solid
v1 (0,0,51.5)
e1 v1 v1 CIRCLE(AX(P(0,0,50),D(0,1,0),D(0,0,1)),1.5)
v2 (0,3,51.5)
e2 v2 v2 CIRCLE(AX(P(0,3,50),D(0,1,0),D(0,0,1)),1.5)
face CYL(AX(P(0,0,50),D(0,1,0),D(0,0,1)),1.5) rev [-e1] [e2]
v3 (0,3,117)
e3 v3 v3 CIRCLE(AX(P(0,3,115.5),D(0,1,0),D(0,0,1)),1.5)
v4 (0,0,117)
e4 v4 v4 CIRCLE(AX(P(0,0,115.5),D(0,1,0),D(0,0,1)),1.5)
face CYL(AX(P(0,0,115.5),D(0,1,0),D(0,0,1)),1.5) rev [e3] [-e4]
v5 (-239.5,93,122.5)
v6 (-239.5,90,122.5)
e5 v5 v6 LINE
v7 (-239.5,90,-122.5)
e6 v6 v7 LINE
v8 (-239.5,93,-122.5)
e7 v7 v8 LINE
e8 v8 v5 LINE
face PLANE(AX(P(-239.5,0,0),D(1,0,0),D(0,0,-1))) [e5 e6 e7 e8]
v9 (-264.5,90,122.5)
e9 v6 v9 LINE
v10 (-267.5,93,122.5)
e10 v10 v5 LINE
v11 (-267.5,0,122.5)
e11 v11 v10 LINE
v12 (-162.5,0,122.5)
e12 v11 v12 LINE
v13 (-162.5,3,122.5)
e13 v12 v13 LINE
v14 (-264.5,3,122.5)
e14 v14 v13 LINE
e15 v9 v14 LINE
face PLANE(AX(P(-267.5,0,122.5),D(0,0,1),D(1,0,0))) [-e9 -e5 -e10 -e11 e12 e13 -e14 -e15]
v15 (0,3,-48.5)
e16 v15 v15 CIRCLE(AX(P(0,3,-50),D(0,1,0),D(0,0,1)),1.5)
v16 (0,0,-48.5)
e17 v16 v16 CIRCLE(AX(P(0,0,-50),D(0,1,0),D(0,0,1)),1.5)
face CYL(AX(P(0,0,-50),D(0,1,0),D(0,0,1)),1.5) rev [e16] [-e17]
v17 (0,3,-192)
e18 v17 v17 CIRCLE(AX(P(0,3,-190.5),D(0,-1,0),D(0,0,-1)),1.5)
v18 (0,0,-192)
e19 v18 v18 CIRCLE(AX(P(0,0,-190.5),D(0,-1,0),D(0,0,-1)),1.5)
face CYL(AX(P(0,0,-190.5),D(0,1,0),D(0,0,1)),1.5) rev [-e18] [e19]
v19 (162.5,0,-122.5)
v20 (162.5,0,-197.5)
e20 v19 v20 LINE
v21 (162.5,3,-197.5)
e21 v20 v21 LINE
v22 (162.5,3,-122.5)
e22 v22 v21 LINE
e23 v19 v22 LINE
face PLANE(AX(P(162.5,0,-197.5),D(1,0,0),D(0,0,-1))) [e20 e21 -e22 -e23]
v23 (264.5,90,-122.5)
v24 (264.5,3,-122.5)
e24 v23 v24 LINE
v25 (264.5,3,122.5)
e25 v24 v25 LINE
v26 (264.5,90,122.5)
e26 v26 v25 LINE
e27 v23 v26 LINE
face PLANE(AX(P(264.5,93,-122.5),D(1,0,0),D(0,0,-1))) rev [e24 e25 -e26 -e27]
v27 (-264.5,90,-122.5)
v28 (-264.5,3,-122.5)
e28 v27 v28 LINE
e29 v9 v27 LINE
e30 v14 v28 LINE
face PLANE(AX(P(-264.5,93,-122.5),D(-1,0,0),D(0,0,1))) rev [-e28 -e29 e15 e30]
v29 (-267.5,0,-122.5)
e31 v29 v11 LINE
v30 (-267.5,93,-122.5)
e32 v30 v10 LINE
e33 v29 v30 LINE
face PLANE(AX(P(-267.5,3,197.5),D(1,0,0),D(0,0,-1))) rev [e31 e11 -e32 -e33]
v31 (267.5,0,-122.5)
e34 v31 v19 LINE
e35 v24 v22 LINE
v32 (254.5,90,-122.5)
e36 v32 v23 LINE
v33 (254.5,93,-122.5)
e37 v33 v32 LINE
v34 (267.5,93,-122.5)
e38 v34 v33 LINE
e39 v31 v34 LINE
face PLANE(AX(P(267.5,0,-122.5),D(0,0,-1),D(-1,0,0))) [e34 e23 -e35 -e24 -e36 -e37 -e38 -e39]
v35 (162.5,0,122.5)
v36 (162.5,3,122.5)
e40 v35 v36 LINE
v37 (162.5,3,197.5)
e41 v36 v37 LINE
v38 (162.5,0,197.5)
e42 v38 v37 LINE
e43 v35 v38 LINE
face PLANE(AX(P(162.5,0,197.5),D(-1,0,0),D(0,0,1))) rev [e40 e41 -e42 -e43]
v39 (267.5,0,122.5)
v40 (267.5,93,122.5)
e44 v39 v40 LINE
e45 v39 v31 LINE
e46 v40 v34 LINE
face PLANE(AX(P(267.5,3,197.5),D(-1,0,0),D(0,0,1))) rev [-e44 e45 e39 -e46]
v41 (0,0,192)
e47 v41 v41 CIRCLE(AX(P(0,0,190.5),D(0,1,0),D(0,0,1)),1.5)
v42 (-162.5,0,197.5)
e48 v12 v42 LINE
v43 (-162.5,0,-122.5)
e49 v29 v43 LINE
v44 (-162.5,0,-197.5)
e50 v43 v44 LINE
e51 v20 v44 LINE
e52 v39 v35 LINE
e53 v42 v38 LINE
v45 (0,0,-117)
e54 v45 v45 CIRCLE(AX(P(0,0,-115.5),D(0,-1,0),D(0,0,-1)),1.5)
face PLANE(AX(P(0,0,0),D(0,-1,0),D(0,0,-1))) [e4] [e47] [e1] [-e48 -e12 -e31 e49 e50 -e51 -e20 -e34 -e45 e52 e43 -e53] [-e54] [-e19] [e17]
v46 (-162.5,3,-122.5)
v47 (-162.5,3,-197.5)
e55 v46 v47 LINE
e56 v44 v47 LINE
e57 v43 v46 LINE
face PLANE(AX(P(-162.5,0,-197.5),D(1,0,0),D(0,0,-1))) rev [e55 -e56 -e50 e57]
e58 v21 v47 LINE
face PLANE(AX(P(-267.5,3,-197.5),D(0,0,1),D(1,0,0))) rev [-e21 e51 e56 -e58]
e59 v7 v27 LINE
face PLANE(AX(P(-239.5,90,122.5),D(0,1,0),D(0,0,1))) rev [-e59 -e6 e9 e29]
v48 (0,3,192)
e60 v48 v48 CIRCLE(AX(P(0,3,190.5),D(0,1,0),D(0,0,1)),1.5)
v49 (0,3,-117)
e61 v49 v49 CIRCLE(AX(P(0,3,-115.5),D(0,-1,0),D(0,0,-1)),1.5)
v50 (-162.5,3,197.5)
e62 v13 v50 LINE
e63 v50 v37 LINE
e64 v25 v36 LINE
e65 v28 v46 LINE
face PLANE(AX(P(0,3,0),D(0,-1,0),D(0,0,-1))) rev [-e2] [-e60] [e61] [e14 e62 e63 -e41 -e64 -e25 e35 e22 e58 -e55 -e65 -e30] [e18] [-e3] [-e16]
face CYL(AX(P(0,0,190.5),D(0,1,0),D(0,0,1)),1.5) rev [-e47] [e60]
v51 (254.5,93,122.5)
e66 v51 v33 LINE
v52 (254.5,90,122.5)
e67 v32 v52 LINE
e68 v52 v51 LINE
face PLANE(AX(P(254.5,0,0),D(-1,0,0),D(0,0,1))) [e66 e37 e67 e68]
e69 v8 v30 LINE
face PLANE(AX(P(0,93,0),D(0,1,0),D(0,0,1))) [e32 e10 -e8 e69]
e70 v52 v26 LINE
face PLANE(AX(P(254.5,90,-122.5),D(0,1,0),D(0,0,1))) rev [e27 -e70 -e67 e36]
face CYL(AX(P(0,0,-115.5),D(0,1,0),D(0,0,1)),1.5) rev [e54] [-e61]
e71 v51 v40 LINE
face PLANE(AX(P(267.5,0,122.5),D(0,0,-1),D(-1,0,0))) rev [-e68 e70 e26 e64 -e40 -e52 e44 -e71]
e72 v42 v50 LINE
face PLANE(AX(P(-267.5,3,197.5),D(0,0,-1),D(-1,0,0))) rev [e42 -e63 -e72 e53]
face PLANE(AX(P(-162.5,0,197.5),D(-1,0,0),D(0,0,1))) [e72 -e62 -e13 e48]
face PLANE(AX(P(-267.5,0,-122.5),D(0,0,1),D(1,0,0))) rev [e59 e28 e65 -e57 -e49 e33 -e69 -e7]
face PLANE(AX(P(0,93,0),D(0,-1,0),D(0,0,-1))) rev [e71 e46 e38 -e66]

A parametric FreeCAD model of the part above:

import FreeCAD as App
import Part
import Sketcher

V = App.Vector
Q = App.Units.Quantity

doc = App.newDocument("Part")
body = doc.addObject("PartDesign::Body", "Body")

# Sketch on XZ plane
sketch1 = doc.addObject("Sketcher::SketchObject", "Sketch")
body.addObject(sketch1)
sketch1.AttachmentSupport = (doc.XZ_Plane, [""])
sketch1.MapMode = "FlatFace"
sketch1.addGeometry(Part.LineSegment(V(-268, -198, 0), V(-268, 198, 0)), False)
sketch1.addGeometry(Part.LineSegment(V(-268, 198, 0), V(268, 198, 0)), False)
sketch1.addGeometry(Part.LineSegment(V(268, 198, 0), V(268, -198, 0)), False)
sketch1.addGeometry(Part.LineSegment(V(268, -198, 0), V(-268, -198, 0)), False)
sketch1.addConstraint(Sketcher.Constraint("Coincident", 0, 2, 1, 1))
sketch1.addConstraint(Sketcher.Constraint("Coincident", 1, 2, 2, 1))
sketch1.addConstraint(Sketcher.Constraint("Coincident", 2, 2, 3, 1))
sketch1.addConstraint(Sketcher.Constraint("Coincident", 3, 2, 0, 1))
sketch1.addConstraint(Sketcher.Constraint("Vertical", 0))
sketch1.addConstraint(Sketcher.Constraint("Horizontal", 1))
sketch1.addConstraint(Sketcher.Constraint("Vertical", 2))
sketch1.addConstraint(Sketcher.Constraint("Horizontal", 3))
sketch1.addConstraint(Sketcher.Constraint("Symmetric", 0, 2, 2, 2, -1, 1))
sketch1.addConstraint(Sketcher.Constraint("DistanceX", 1, 1, 1, 2, Q("535 mm")))
sketch1.addConstraint(Sketcher.Constraint("DistanceY", 0, 1, 0, 2, Q("395 mm")))
pad1 = doc.addObject("PartDesign::Pad", "Pad")
body.addObject(pad1)
pad1.Profile = sketch1
pad1.Length = 3
pad1.Reversed = True

# Sketch on XZ plane
sketch2 = doc.addObject("Sketcher::SketchObject", "Sketch001")
body.addObject(sketch2)
sketch2.AttachmentSupport = (doc.XZ_Plane, [""])
sketch2.MapMode = "FlatFace"
sketch2.AttachmentOffset = App.Placement(V(0, 0, -3), App.Rotation())
sketch2.addGeometry(Part.LineSegment(V(-268, -198, 0), V(-268, -122, 0)), False)
sketch2.addGeometry(Part.LineSegment(V(-268, -122, 0), V(-162, -122, 0)), False)
sketch2.addGeometry(Part.LineSegment(V(-162, -122, 0), V(-162, -198, 0)), False)
sketch2.addGeometry(Part.LineSegment(V(-162, -198, 0), V(-268, -198, 0)), False)
sketch2.addConstraint(Sketcher.Constraint("Coincident", 0, 2, 1, 1))
sketch2.addConstraint(Sketcher.Constraint("Coincident", 1, 2, 2, 1))
sketch2.addConstraint(Sketcher.Constraint("Coincident", 2, 2, 3, 1))
sketch2.addConstraint(Sketcher.Constraint("Coincident", 3, 2, 0, 1))
sketch2.addConstraint(Sketcher.Constraint("Vertical", 0))
sketch2.addConstraint(Sketcher.Constraint("Horizontal", 1))
sketch2.addConstraint(Sketcher.Constraint("Vertical", 2))
sketch2.addConstraint(Sketcher.Constraint("Horizontal", 3))
sketch2.addConstraint(Sketcher.Constraint("DistanceX", 1, 1, 1, 2, Q("105 mm")))
sketch2.addConstraint(Sketcher.Constraint("DistanceY", 0, 1, 0, 2, Q("75 mm")))
sketch2.addConstraint(Sketcher.Constraint("DistanceX", 0, 2, -1, 1, Q("267.5 mm")))
sketch2.addConstraint(Sketcher.Constraint("DistanceY", 0, 2, -1, 1, Q("122.5 mm")))
pocket1 = doc.addObject("PartDesign::Pocket", "Pocket")
body.addObject(pocket1)
pocket1.Profile = sketch2
pocket1.Length = 3
pocket1.Reversed = True
doc.recompute()

mirrored = doc.addObject("PartDesign::Mirrored", "Mirrored")
body.addObject(mirrored)
mirrored.Originals = [pocket1]
mirrored.MirrorPlane = (doc.XY_Plane, [""])
body.Tip = mirrored
doc.recompute()

mirrored2 = doc.addObject("PartDesign::Mirrored", "Mirrored001")
body.addObject(mirrored2)
mirrored2.Originals = [pocket1]
mirrored2.MirrorPlane = (doc.YZ_Plane, [""])
body.Tip = mirrored2

# Sketch on XZ plane
sketch3 = doc.addObject("Sketcher::SketchObject", "Sketch002")
body.addObject(sketch3)
sketch3.AttachmentSupport = (doc.XZ_Plane, [""])
sketch3.MapMode = "FlatFace"
sketch3.AttachmentOffset = App.Placement(V(0, 0, -3), App.Rotation())
sketch3.addGeometry(Part.LineSegment(V(268, 198, 0), V(268, 122, 0)), False)
sketch3.addGeometry(Part.LineSegment(V(268, 122, 0), V(162, 122, 0)), False)
sketch3.addGeometry(Part.LineSegment(V(162, 122, 0), V(162, 198, 0)), False)
sketch3.addGeometry(Part.LineSegment(V(162, 198, 0), V(268, 198, 0)), False)
sketch3.addConstraint(Sketcher.Constraint("Coincident", 0, 2, 1, 1))
sketch3.addConstraint(Sketcher.Constraint("Coincident", 1, 2, 2, 1))
sketch3.addConstraint(Sketcher.Constraint("Coincident", 2, 2, 3, 1))
sketch3.addConstraint(Sketcher.Constraint("Coincident", 3, 2, 0, 1))
sketch3.addConstraint(Sketcher.Constraint("Vertical", 0))
sketch3.addConstraint(Sketcher.Constraint("Horizontal", 1))
sketch3.addConstraint(Sketcher.Constraint("Vertical", 2))
sketch3.addConstraint(Sketcher.Constraint("Horizontal", 3))
sketch3.addConstraint(Sketcher.Constraint("DistanceX", 1, 2, 1, 1, Q("105 mm")))
sketch3.addConstraint(Sketcher.Constraint("DistanceY", 0, 2, 0, 1, Q("75 mm")))
sketch3.addConstraint(Sketcher.Constraint("DistanceX", -1, 1, 0, 2, Q("267.5 mm")))
sketch3.addConstraint(Sketcher.Constraint("DistanceY", -1, 1, 0, 2, Q("122.5 mm")))
pocket2 = doc.addObject("PartDesign::Pocket", "Pocket001")
body.addObject(pocket2)
pocket2.Profile = sketch3
pocket2.Length = 3
pocket2.Reversed = True

# Sketch on XZ plane
sketch4 = doc.addObject("Sketcher::SketchObject", "Sketch003")
body.addObject(sketch4)
sketch4.AttachmentSupport = (doc.XZ_Plane, [""])
sketch4.MapMode = "FlatFace"
sketch4.AttachmentOffset = App.Placement(V(0, 0, -3), App.Rotation())
sketch4.addGeometry(Part.LineSegment(V(-267.5, -122.5, 0), V(-267.5, 122.5, 0)), False)
sketch4.addGeometry(Part.LineSegment(V(-267.5, 122.5, 0), V(-264.5, 122.5, 0)), False)
sketch4.addGeometry(Part.LineSegment(V(-264.5, 122.5, 0), V(-264.5, -122.5, 0)), False)
sketch4.addGeometry(Part.LineSegment(V(-264.5, -122.5, 0), V(-267.5, -122.5, 0)), False)
sketch4.addConstraint(Sketcher.Constraint("Coincident", 0, 2, 1, 1))
sketch4.addConstraint(Sketcher.Constraint("Coincident", 1, 2, 2, 1))
sketch4.addConstraint(Sketcher.Constraint("Coincident", 2, 2, 3, 1))
sketch4.addConstraint(Sketcher.Constraint("Coincident", 3, 2, 0, 1))
sketch4.addConstraint(Sketcher.Constraint("Vertical", 0))
sketch4.addConstraint(Sketcher.Constraint("Horizontal", 1))
sketch4.addConstraint(Sketcher.Constraint("Vertical", 2))
sketch4.addConstraint(Sketcher.Constraint("Horizontal", 3))
sketch4.addConstraint(Sketcher.Constraint("DistanceX", 1, 1, 1, 2, Q("3 mm")))
sketch4.addConstraint(Sketcher.Constraint("DistanceY", 0, 1, 0, 2, Q("245 mm")))
sketch4.addConstraint(Sketcher.Constraint("DistanceX", 0, 2, -1, 1, Q("267.5 mm")))
sketch4.addConstraint(Sketcher.Constraint("DistanceY", -1, 1, 0, 2, Q("122.5 mm")))
pad2 = doc.addObject("PartDesign::Pad", "Pad001")
body.addObject(pad2)
pad2.Profile = sketch4
pad2.Length = 90
pad2.Reversed = True

# Sketch on YZ plane
sketch5 = doc.addObject("Sketcher::SketchObject", "Sketch004")
body.addObject(sketch5)
sketch5.AttachmentSupport = (doc.YZ_Plane, [""])
sketch5.MapMode = "FlatFace"
sketch5.AttachmentOffset = App.Placement(V(0, 0, -264.5), App.Rotation())
sketch5.addGeometry(Part.LineSegment(V(93, 122.5, 0), V(90, 122.5, 0)), False)
sketch5.addGeometry(Part.LineSegment(V(90, 122.5, 0), V(90, -122.5, 0)), False)
sketch5.addGeometry(Part.LineSegment(V(90, -122.5, 0), V(93, -122.5, 0)), False)
sketch5.addGeometry(Part.LineSegment(V(93, -122.5, 0), V(93, 122.5, 0)), False)
sketch5.addConstraint(Sketcher.Constraint("Coincident", 0, 2, 1, 1))
sketch5.addConstraint(Sketcher.Constraint("Coincident", 1, 2, 2, 1))
sketch5.addConstraint(Sketcher.Constraint("Coincident", 2, 2, 3, 1))
sketch5.addConstraint(Sketcher.Constraint("Coincident", 3, 2, 0, 1))
sketch5.addConstraint(Sketcher.Constraint("Horizontal", 0))
sketch5.addConstraint(Sketcher.Constraint("Vertical", 1))
sketch5.addConstraint(Sketcher.Constraint("Horizontal", 2))
sketch5.addConstraint(Sketcher.Constraint("Vertical", 3))
sketch5.addConstraint(Sketcher.Constraint("DistanceX", 0, 2, 0, 1, Q("3 mm")))
sketch5.addConstraint(Sketcher.Constraint("DistanceY", 1, 2, 1, 1, Q("245 mm")))
sketch5.addConstraint(Sketcher.Constraint("DistanceX", -1, 1, 0, 2, Q("90 mm")))
sketch5.addConstraint(Sketcher.Constraint("DistanceY", -1, 1, 0, 2, Q("122.5 mm")))
pad3 = doc.addObject("PartDesign::Pad", "Pad002")
body.addObject(pad3)
pad3.Profile = sketch5
pad3.Length = 25

# Sketch on XZ plane
sketch6 = doc.addObject("Sketcher::SketchObject", "Sketch005")
body.addObject(sketch6)
sketch6.AttachmentSupport = (doc.XZ_Plane, [""])
sketch6.MapMode = "FlatFace"
sketch6.AttachmentOffset = App.Placement(V(0, 0, -3), App.Rotation())
sketch6.addGeometry(Part.LineSegment(V(264.5, -122.5, 0), V(264.5, 122.5, 0)), False)
sketch6.addGeometry(Part.LineSegment(V(264.5, 122.5, 0), V(267.5, 122.5, 0)), False)
sketch6.addGeometry(Part.LineSegment(V(267.5, 122.5, 0), V(267.5, -122.5, 0)), False)
sketch6.addGeometry(Part.LineSegment(V(267.5, -122.5, 0), V(264.5, -122.5, 0)), False)
sketch6.addConstraint(Sketcher.Constraint("Coincident", 0, 2, 1, 1))
sketch6.addConstraint(Sketcher.Constraint("Coincident", 1, 2, 2, 1))
sketch6.addConstraint(Sketcher.Constraint("Coincident", 2, 2, 3, 1))
sketch6.addConstraint(Sketcher.Constraint("Coincident", 3, 2, 0, 1))
sketch6.addConstraint(Sketcher.Constraint("Vertical", 0))
sketch6.addConstraint(Sketcher.Constraint("Horizontal", 1))
sketch6.addConstraint(Sketcher.Constraint("Vertical", 2))
sketch6.addConstraint(Sketcher.Constraint("Horizontal", 3))
sketch6.addConstraint(Sketcher.Constraint("DistanceX", 1, 1, 1, 2, Q("3 mm")))
sketch6.addConstraint(Sketcher.Constraint("DistanceY", 0, 1, 0, 2, Q("245 mm")))
sketch6.addConstraint(Sketcher.Constraint("DistanceX", -1, 1, 0, 2, Q("264.5 mm")))
sketch6.addConstraint(Sketcher.Constraint("DistanceY", -1, 1, 0, 2, Q("122.5 mm")))
pad4 = doc.addObject("PartDesign::Pad", "Pad003")
body.addObject(pad4)
pad4.Profile = sketch6
pad4.Length = 90
pad4.Reversed = True

# Sketch on YZ plane
sketch7 = doc.addObject("Sketcher::SketchObject", "Sketch006")
body.addObject(sketch7)
sketch7.AttachmentSupport = (doc.YZ_Plane, [""])
sketch7.MapMode = "FlatFace"
sketch7.AttachmentOffset = App.Placement(V(0, 0, 264.5), App.Rotation())
sketch7.addGeometry(Part.LineSegment(V(93, -122.5, 0), V(90, -122.5, 0)), False)
sketch7.addGeometry(Part.LineSegment(V(90, -122.5, 0), V(90, 122.5, 0)), False)
sketch7.addGeometry(Part.LineSegment(V(90, 122.5, 0), V(93, 122.5, 0)), False)
sketch7.addGeometry(Part.LineSegment(V(93, 122.5, 0), V(93, -122.5, 0)), False)
sketch7.addConstraint(Sketcher.Constraint("Coincident", 0, 2, 1, 1))
sketch7.addConstraint(Sketcher.Constraint("Coincident", 1, 2, 2, 1))
sketch7.addConstraint(Sketcher.Constraint("Coincident", 2, 2, 3, 1))
sketch7.addConstraint(Sketcher.Constraint("Coincident", 3, 2, 0, 1))
sketch7.addConstraint(Sketcher.Constraint("Horizontal", 0))
sketch7.addConstraint(Sketcher.Constraint("Vertical", 1))
sketch7.addConstraint(Sketcher.Constraint("Horizontal", 2))
sketch7.addConstraint(Sketcher.Constraint("Vertical", 3))
sketch7.addConstraint(Sketcher.Constraint("DistanceX", 0, 2, 0, 1, Q("3 mm")))
sketch7.addConstraint(Sketcher.Constraint("DistanceY", 1, 1, 1, 2, Q("245 mm")))
sketch7.addConstraint(Sketcher.Constraint("DistanceX", -1, 1, 0, 2, Q("90 mm")))
sketch7.addConstraint(Sketcher.Constraint("DistanceY", 0, 2, -1, 1, Q("122.5 mm")))
pad5 = doc.addObject("PartDesign::Pad", "Pad004")
body.addObject(pad5)
pad5.Profile = sketch7
pad5.Length = 10
pad5.Reversed = True

# Sketch on XZ plane
sketch8 = doc.addObject("Sketcher::SketchObject", "Sketch007")
body.addObject(sketch8)
sketch8.AttachmentSupport = (doc.XZ_Plane, [""])
sketch8.MapMode = "FlatFace"
sketch8.AttachmentOffset = App.Placement(V(0, 0, -3), App.Rotation())
sketch8.addGeometry(Part.Circle(V(0, -50, 0), V(0, 0, 1), 1.5), False)
sketch8.addGeometry(Part.Circle(V(0, 50, 0), V(0, 0, 1), 1.5), False)
sketch8.addConstraint(Sketcher.Constraint("Equal", 0, 1))
sketch8.addConstraint(Sketcher.Constraint("Symmetric", 0, 3, 1, 3, -1, 1))
sketch8.addConstraint(Sketcher.Constraint("PointOnObject", 0, 3, -2))
sketch8.addConstraint(Sketcher.Constraint("Diameter", 0, Q("3 mm")))
sketch8.addConstraint(Sketcher.Constraint("DistanceY", 0, 3, -1, 1, Q("50 mm")))
pocket3 = doc.addObject("PartDesign::Pocket", "Pocket002")
body.addObject(pocket3)
pocket3.Profile = sketch8
pocket3.Length = 3
pocket3.Reversed = True

# Sketch on XZ plane
sketch9 = doc.addObject("Sketcher::SketchObject", "Sketch008")
body.addObject(sketch9)
sketch9.AttachmentSupport = (doc.XZ_Plane, [""])
sketch9.MapMode = "FlatFace"
sketch9.AttachmentOffset = App.Placement(V(0, 0, -3), App.Rotation())
sketch9.addGeometry(Part.Circle(V(0, 190.5, 0), V(0, 0, 1), 1.5), False)
sketch9.addConstraint(Sketcher.Constraint("PointOnObject", 0, 3, -2))
sketch9.addConstraint(Sketcher.Constraint("Diameter", 0, Q("3 mm")))
sketch9.addConstraint(Sketcher.Constraint("DistanceY", -1, 1, 0, 3, Q("190.5 mm")))
pocket4 = doc.addObject("PartDesign::Pocket", "Pocket003")
body.addObject(pocket4)
pocket4.Profile = sketch9
pocket4.Type = "ThroughAll"
pocket4.Reversed = True

# Sketch on XZ plane
sketch10 = doc.addObject("Sketcher::SketchObject", "Sketch009")
body.addObject(sketch10)
sketch10.AttachmentSupport = (doc.XZ_Plane, [""])
sketch10.MapMode = "FlatFace"
sketch10.AttachmentOffset = App.Placement(V(0, 0, -3), App.Rotation())
sketch10.addGeometry(Part.Circle(V(0, 115.5, 0), V(0, 0, 1), 1.5), False)
sketch10.addConstraint(Sketcher.Constraint("PointOnObject", 0, 3, -2))
sketch10.addConstraint(Sketcher.Constraint("Diameter", 0, Q("3 mm")))
sketch10.addConstraint(Sketcher.Constraint("DistanceY", -1, 1, 0, 3, Q("115.5 mm")))
pocket5 = doc.addObject("PartDesign::Pocket", "Pocket004")
body.addObject(pocket5)
pocket5.Profile = sketch10
pocket5.Type = "ThroughAll"
pocket5.Reversed = True
doc.recompute()

mirrored3 = doc.addObject("PartDesign::Mirrored", "Mirrored002")
body.addObject(mirrored3)
mirrored3.Originals = [pocket4, pocket5]
mirrored3.MirrorPlane = (doc.XY_Plane, [""])
body.Tip = mirrored3

doc.recompute()
